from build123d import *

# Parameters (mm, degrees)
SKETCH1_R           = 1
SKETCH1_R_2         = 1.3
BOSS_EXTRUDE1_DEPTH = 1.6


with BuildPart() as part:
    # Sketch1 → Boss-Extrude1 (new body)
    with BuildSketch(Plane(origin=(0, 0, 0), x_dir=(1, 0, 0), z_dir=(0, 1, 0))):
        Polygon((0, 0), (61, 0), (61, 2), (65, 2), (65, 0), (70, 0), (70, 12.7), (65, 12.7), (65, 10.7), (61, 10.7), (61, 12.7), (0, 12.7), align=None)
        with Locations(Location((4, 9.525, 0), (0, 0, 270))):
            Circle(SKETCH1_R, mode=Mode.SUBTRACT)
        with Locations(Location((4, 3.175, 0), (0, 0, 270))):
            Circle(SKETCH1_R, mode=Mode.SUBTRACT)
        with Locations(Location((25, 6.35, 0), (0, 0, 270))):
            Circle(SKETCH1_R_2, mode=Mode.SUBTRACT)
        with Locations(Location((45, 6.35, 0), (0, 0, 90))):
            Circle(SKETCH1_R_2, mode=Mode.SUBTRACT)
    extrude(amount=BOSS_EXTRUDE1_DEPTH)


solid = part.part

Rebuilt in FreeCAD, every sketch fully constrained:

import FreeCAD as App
import Part
import Sketcher

doc = App.newDocument("Part")
body = doc.addObject("PartDesign::Body", "Body")

sketch1 = doc.addObject("Sketcher::SketchObject", "Sketch")
body.addObject(sketch1)
sketch1.AttachmentSupport = (doc.XZ_Plane, [""])
sketch1.MapMode = "FlatFace"
sketch1.addGeometry(Part.LineSegment(App.Vector(0, 0, 0), App.Vector(61, 0, 0)), False)
sketch1.addGeometry(Part.LineSegment(App.Vector(61, 0, 0), App.Vector(61, -2, 0)), False)
sketch1.addGeometry(Part.LineSegment(App.Vector(61, -2, 0), App.Vector(65, -2, 0)), False)
sketch1.addGeometry(Part.LineSegment(App.Vector(65, -2, 0), App.Vector(65, 0, 0)), False)
sketch1.addGeometry(Part.LineSegment(App.Vector(65, 0, 0), App.Vector(70, 0, 0)), False)
sketch1.addGeometry(Part.LineSegment(App.Vector(70, 0, 0), App.Vector(70, -12.7, 0)), False)
sketch1.addGeometry(Part.LineSegment(App.Vector(70, -12.7, 0), App.Vector(65, -12.7, 0)), False)
sketch1.addGeometry(Part.LineSegment(App.Vector(65, -12.7, 0), App.Vector(65, -10.7, 0)), False)
sketch1.addGeometry(Part.LineSegment(App.Vector(65, -10.7, 0), App.Vector(61, -10.7, 0)), False)
sketch1.addGeometry(Part.LineSegment(App.Vector(61, -10.7, 0), App.Vector(61, -12.7, 0)), False)
sketch1.addGeometry(Part.LineSegment(App.Vector(61, -12.7, 0), App.Vector(0, -12.7, 0)), False)
sketch1.addGeometry(Part.LineSegment(App.Vector(0, -12.7, 0), App.Vector(0, 0, 0)), False)
sketch1.addGeometry(Part.Circle(App.Vector(4, -3.2, 0), App.Vector(0, 0, 1), 1), False)
sketch1.addGeometry(Part.Circle(App.Vector(25, -6.3, 0), App.Vector(0, 0, 1), 1.3), False)
sketch1.addGeometry(Part.Circle(App.Vector(45, -6.3, 0), App.Vector(0, 0, 1), 1.3), False)
sketch1.addGeometry(Part.Circle(App.Vector(4, -9.5, 0), App.Vector(0, 0, 1), 1), False)
sketch1.addConstraint(Sketcher.Constraint("Coincident", 0, 2, 1, 1))
sketch1.addConstraint(Sketcher.Constraint("Coincident", 1, 2, 2, 1))
sketch1.addConstraint(Sketcher.Constraint("Coincident", 2, 2, 3, 1))
sketch1.addConstraint(Sketcher.Constraint("Coincident", 3, 2, 4, 1))
sketch1.addConstraint(Sketcher.Constraint("Coincident", 4, 2, 5, 1))
sketch1.addConstraint(Sketcher.Constraint("Coincident", 5, 2, 6, 1))
sketch1.addConstraint(Sketcher.Constraint("Coincident", 6, 2, 7, 1))
sketch1.addConstraint(Sketcher.Constraint("Coincident", 7, 2, 8, 1))
sketch1.addConstraint(Sketcher.Constraint("Coincident", 8, 2, 9, 1))
sketch1.addConstraint(Sketcher.Constraint("Coincident", 9, 2, 10, 1))
sketch1.addConstraint(Sketcher.Constraint("Coincident", 10, 2, 11, 1))
sketch1.addConstraint(Sketcher.Constraint("Coincident", 11, 2, 0, 1))
sketch1.addConstraint(Sketcher.Constraint("Horizontal", 0))
sketch1.addConstraint(Sketcher.Constraint("Vertical", 1))
sketch1.addConstraint(Sketcher.Constraint("Horizontal", 2))
sketch1.addConstraint(Sketcher.Constraint("Vertical", 3))
sketch1.addConstraint(Sketcher.Constraint("Horizontal", 4))
sketch1.addConstraint(Sketcher.Constraint("Vertical", 5))
sketch1.addConstraint(Sketcher.Constraint("Horizontal", 6))
sketch1.addConstraint(Sketcher.Constraint("Vertical", 7))
sketch1.addConstraint(Sketcher.Constraint("Horizontal", 8))
sketch1.addConstraint(Sketcher.Constraint("Vertical", 9))
sketch1.addConstraint(Sketcher.Constraint("Horizontal", 10))
sketch1.addConstraint(Sketcher.Constraint("Vertical", 11))
sketch1.addConstraint(Sketcher.Constraint("Coincident", 11, 2, -1, 1))
sketch1.addConstraint(Sketcher.Constraint("Equal", 13, 14))
sketch1.addConstraint(Sketcher.Constraint("Equal", 12, 15))
sketch1.addConstraint(Sketcher.Constraint("PointOnObject", 3, 2, -1))
sketch1.addConstraint(Sketcher.Constraint("Horizontal", 13, 3, 14, 3))
sketch1.addConstraint(Sketcher.Constraint("Horizontal", 6, 2, 9, 2))
sketch1.addConstraint(Sketcher.Constraint("Vertical", 12, 3, 15, 3))
sketch1.addConstraint(Sketcher.Constraint("Vertical", 3, 2, 6, 2))
sketch1.addConstraint(Sketcher.Constraint("Vertical", 1, 2, 8, 2))
sketch1.addConstraint(Sketcher.Constraint("Equal", 3, 7))
sketch1.addConstraint(Sketcher.Constraint("Diameter", 12, 2.0))
sketch1.addConstraint(Sketcher.Constraint("Diameter", 13, 2.6))
sketch1.addConstraint(Sketcher.Constraint("DistanceX", 0, 1, 0, 2, 61.0))
sketch1.addConstraint(Sketcher.Constraint("DistanceX", 2, 1, 2, 2, 4.0))
sketch1.addConstraint(Sketcher.Constraint("DistanceX", 4, 1, 4, 2, 5.0))
sketch1.addConstraint(Sketcher.Constraint("DistanceY", 1, 2, 1, 1, 2.0))
sketch1.addConstraint(Sketcher.Constraint("DistanceY", 5, 2, 5, 1, 12.7))
sketch1.addConstraint(Sketcher.Constraint("DistanceX", -1, 1, 12, 3, 4.0))
sketch1.addConstraint(Sketcher.Constraint("DistanceX", -1, 1, 13, 3, 25.0))
sketch1.addConstraint(Sketcher.Constraint("DistanceX", -1, 1, 14, 3, 45.0))
sketch1.addConstraint(Sketcher.Constraint("DistanceY", 13, 3, -1, 1, 6.35))
sketch1.addConstraint(Sketcher.Constraint("DistanceY", 15, 3, 12, 3, 6.35))
sketch1.addConstraint(Sketcher.Constraint("DistanceY", 12, 3, -1, 1, 3.175))
pad1 = doc.addObject("PartDesign::Pad", "Pad")
body.addObject(pad1)
pad1.Profile = sketch1
pad1.Length = 1.6
pad1.Reversed = True

doc.recompute()
